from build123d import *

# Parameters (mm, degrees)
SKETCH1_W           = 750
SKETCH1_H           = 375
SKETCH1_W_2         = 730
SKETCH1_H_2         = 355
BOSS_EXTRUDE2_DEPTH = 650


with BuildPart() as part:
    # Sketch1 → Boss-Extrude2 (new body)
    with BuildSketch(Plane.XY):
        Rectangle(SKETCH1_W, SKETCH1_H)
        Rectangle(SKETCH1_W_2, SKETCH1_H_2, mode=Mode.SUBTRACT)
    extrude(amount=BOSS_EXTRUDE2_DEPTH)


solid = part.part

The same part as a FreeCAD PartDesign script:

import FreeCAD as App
import Part
import Sketcher


def add_polygon(sketch, points):
    """Adds a closed chain of lines whose ends are joined by coincident constraints."""
    first, n = sketch.GeometryCount, len(points)
    for a, b in zip(points, points[1:] + points[:1]):
        sketch.addGeometry(Part.LineSegment(App.Vector(*a, 0), App.Vector(*b, 0)), False)
    for i in range(n):
        sketch.addConstraint(Sketcher.Constraint("Coincident", first + i, 2, first + (i + 1) % n, 1))

doc = App.newDocument("Part")
body = doc.addObject("PartDesign::Body", "Body")

# Sketch on XY plane
sketch1 = body.newObject("Sketcher::SketchObject", "Sketch")
sketch1.AttachmentSupport = (doc.getObject("XY_Plane"), [""])
sketch1.MapMode = "FlatFace"
add_polygon(sketch1, [(-375, 188), (-375, -188), (375, -188), (375, 188)])  # lines 0-3
add_polygon(sketch1, [(365, -178), (-365, -178), (-365, 178), (365, 178)])  # lines 4-7
sketch1.addConstraint(Sketcher.Constraint("Vertical", 0))
sketch1.addConstraint(Sketcher.Constraint("Horizontal", 1))
sketch1.addConstraint(Sketcher.Constraint("Vertical", 2))
sketch1.addConstraint(Sketcher.Constraint("Horizontal", 3))
sketch1.addConstraint(Sketcher.Constraint("Horizontal", 4))
sketch1.addConstraint(Sketcher.Constraint("Vertical", 5))
sketch1.addConstraint(Sketcher.Constraint("Horizontal", 6))
sketch1.addConstraint(Sketcher.Constraint("Vertical", 7))
sketch1.addConstraint(Sketcher.Constraint("Symmetric", 0, 2, 2, 2, -1, 1))
sketch1.addConstraint(Sketcher.Constraint("Symmetric", 4, 2, 6, 2, -1, 1))
sketch1.addConstraint(Sketcher.Constraint("DistanceX", 1, 1, 1, 2, 750.0))
sketch1.addConstraint(Sketcher.Constraint("DistanceX", 4, 2, 4, 1, 730.0))
sketch1.addConstraint(Sketcher.Constraint("DistanceY", 0, 2, 0, 1, 375.0))
sketch1.addConstraint(Sketcher.Constraint("DistanceY", 5, 1, 5, 2, 355.0))
pad1 = body.newObject("PartDesign::Pad", "Pad")
pad1.Profile = sketch1
pad1.Length = 650

doc.recompute()
